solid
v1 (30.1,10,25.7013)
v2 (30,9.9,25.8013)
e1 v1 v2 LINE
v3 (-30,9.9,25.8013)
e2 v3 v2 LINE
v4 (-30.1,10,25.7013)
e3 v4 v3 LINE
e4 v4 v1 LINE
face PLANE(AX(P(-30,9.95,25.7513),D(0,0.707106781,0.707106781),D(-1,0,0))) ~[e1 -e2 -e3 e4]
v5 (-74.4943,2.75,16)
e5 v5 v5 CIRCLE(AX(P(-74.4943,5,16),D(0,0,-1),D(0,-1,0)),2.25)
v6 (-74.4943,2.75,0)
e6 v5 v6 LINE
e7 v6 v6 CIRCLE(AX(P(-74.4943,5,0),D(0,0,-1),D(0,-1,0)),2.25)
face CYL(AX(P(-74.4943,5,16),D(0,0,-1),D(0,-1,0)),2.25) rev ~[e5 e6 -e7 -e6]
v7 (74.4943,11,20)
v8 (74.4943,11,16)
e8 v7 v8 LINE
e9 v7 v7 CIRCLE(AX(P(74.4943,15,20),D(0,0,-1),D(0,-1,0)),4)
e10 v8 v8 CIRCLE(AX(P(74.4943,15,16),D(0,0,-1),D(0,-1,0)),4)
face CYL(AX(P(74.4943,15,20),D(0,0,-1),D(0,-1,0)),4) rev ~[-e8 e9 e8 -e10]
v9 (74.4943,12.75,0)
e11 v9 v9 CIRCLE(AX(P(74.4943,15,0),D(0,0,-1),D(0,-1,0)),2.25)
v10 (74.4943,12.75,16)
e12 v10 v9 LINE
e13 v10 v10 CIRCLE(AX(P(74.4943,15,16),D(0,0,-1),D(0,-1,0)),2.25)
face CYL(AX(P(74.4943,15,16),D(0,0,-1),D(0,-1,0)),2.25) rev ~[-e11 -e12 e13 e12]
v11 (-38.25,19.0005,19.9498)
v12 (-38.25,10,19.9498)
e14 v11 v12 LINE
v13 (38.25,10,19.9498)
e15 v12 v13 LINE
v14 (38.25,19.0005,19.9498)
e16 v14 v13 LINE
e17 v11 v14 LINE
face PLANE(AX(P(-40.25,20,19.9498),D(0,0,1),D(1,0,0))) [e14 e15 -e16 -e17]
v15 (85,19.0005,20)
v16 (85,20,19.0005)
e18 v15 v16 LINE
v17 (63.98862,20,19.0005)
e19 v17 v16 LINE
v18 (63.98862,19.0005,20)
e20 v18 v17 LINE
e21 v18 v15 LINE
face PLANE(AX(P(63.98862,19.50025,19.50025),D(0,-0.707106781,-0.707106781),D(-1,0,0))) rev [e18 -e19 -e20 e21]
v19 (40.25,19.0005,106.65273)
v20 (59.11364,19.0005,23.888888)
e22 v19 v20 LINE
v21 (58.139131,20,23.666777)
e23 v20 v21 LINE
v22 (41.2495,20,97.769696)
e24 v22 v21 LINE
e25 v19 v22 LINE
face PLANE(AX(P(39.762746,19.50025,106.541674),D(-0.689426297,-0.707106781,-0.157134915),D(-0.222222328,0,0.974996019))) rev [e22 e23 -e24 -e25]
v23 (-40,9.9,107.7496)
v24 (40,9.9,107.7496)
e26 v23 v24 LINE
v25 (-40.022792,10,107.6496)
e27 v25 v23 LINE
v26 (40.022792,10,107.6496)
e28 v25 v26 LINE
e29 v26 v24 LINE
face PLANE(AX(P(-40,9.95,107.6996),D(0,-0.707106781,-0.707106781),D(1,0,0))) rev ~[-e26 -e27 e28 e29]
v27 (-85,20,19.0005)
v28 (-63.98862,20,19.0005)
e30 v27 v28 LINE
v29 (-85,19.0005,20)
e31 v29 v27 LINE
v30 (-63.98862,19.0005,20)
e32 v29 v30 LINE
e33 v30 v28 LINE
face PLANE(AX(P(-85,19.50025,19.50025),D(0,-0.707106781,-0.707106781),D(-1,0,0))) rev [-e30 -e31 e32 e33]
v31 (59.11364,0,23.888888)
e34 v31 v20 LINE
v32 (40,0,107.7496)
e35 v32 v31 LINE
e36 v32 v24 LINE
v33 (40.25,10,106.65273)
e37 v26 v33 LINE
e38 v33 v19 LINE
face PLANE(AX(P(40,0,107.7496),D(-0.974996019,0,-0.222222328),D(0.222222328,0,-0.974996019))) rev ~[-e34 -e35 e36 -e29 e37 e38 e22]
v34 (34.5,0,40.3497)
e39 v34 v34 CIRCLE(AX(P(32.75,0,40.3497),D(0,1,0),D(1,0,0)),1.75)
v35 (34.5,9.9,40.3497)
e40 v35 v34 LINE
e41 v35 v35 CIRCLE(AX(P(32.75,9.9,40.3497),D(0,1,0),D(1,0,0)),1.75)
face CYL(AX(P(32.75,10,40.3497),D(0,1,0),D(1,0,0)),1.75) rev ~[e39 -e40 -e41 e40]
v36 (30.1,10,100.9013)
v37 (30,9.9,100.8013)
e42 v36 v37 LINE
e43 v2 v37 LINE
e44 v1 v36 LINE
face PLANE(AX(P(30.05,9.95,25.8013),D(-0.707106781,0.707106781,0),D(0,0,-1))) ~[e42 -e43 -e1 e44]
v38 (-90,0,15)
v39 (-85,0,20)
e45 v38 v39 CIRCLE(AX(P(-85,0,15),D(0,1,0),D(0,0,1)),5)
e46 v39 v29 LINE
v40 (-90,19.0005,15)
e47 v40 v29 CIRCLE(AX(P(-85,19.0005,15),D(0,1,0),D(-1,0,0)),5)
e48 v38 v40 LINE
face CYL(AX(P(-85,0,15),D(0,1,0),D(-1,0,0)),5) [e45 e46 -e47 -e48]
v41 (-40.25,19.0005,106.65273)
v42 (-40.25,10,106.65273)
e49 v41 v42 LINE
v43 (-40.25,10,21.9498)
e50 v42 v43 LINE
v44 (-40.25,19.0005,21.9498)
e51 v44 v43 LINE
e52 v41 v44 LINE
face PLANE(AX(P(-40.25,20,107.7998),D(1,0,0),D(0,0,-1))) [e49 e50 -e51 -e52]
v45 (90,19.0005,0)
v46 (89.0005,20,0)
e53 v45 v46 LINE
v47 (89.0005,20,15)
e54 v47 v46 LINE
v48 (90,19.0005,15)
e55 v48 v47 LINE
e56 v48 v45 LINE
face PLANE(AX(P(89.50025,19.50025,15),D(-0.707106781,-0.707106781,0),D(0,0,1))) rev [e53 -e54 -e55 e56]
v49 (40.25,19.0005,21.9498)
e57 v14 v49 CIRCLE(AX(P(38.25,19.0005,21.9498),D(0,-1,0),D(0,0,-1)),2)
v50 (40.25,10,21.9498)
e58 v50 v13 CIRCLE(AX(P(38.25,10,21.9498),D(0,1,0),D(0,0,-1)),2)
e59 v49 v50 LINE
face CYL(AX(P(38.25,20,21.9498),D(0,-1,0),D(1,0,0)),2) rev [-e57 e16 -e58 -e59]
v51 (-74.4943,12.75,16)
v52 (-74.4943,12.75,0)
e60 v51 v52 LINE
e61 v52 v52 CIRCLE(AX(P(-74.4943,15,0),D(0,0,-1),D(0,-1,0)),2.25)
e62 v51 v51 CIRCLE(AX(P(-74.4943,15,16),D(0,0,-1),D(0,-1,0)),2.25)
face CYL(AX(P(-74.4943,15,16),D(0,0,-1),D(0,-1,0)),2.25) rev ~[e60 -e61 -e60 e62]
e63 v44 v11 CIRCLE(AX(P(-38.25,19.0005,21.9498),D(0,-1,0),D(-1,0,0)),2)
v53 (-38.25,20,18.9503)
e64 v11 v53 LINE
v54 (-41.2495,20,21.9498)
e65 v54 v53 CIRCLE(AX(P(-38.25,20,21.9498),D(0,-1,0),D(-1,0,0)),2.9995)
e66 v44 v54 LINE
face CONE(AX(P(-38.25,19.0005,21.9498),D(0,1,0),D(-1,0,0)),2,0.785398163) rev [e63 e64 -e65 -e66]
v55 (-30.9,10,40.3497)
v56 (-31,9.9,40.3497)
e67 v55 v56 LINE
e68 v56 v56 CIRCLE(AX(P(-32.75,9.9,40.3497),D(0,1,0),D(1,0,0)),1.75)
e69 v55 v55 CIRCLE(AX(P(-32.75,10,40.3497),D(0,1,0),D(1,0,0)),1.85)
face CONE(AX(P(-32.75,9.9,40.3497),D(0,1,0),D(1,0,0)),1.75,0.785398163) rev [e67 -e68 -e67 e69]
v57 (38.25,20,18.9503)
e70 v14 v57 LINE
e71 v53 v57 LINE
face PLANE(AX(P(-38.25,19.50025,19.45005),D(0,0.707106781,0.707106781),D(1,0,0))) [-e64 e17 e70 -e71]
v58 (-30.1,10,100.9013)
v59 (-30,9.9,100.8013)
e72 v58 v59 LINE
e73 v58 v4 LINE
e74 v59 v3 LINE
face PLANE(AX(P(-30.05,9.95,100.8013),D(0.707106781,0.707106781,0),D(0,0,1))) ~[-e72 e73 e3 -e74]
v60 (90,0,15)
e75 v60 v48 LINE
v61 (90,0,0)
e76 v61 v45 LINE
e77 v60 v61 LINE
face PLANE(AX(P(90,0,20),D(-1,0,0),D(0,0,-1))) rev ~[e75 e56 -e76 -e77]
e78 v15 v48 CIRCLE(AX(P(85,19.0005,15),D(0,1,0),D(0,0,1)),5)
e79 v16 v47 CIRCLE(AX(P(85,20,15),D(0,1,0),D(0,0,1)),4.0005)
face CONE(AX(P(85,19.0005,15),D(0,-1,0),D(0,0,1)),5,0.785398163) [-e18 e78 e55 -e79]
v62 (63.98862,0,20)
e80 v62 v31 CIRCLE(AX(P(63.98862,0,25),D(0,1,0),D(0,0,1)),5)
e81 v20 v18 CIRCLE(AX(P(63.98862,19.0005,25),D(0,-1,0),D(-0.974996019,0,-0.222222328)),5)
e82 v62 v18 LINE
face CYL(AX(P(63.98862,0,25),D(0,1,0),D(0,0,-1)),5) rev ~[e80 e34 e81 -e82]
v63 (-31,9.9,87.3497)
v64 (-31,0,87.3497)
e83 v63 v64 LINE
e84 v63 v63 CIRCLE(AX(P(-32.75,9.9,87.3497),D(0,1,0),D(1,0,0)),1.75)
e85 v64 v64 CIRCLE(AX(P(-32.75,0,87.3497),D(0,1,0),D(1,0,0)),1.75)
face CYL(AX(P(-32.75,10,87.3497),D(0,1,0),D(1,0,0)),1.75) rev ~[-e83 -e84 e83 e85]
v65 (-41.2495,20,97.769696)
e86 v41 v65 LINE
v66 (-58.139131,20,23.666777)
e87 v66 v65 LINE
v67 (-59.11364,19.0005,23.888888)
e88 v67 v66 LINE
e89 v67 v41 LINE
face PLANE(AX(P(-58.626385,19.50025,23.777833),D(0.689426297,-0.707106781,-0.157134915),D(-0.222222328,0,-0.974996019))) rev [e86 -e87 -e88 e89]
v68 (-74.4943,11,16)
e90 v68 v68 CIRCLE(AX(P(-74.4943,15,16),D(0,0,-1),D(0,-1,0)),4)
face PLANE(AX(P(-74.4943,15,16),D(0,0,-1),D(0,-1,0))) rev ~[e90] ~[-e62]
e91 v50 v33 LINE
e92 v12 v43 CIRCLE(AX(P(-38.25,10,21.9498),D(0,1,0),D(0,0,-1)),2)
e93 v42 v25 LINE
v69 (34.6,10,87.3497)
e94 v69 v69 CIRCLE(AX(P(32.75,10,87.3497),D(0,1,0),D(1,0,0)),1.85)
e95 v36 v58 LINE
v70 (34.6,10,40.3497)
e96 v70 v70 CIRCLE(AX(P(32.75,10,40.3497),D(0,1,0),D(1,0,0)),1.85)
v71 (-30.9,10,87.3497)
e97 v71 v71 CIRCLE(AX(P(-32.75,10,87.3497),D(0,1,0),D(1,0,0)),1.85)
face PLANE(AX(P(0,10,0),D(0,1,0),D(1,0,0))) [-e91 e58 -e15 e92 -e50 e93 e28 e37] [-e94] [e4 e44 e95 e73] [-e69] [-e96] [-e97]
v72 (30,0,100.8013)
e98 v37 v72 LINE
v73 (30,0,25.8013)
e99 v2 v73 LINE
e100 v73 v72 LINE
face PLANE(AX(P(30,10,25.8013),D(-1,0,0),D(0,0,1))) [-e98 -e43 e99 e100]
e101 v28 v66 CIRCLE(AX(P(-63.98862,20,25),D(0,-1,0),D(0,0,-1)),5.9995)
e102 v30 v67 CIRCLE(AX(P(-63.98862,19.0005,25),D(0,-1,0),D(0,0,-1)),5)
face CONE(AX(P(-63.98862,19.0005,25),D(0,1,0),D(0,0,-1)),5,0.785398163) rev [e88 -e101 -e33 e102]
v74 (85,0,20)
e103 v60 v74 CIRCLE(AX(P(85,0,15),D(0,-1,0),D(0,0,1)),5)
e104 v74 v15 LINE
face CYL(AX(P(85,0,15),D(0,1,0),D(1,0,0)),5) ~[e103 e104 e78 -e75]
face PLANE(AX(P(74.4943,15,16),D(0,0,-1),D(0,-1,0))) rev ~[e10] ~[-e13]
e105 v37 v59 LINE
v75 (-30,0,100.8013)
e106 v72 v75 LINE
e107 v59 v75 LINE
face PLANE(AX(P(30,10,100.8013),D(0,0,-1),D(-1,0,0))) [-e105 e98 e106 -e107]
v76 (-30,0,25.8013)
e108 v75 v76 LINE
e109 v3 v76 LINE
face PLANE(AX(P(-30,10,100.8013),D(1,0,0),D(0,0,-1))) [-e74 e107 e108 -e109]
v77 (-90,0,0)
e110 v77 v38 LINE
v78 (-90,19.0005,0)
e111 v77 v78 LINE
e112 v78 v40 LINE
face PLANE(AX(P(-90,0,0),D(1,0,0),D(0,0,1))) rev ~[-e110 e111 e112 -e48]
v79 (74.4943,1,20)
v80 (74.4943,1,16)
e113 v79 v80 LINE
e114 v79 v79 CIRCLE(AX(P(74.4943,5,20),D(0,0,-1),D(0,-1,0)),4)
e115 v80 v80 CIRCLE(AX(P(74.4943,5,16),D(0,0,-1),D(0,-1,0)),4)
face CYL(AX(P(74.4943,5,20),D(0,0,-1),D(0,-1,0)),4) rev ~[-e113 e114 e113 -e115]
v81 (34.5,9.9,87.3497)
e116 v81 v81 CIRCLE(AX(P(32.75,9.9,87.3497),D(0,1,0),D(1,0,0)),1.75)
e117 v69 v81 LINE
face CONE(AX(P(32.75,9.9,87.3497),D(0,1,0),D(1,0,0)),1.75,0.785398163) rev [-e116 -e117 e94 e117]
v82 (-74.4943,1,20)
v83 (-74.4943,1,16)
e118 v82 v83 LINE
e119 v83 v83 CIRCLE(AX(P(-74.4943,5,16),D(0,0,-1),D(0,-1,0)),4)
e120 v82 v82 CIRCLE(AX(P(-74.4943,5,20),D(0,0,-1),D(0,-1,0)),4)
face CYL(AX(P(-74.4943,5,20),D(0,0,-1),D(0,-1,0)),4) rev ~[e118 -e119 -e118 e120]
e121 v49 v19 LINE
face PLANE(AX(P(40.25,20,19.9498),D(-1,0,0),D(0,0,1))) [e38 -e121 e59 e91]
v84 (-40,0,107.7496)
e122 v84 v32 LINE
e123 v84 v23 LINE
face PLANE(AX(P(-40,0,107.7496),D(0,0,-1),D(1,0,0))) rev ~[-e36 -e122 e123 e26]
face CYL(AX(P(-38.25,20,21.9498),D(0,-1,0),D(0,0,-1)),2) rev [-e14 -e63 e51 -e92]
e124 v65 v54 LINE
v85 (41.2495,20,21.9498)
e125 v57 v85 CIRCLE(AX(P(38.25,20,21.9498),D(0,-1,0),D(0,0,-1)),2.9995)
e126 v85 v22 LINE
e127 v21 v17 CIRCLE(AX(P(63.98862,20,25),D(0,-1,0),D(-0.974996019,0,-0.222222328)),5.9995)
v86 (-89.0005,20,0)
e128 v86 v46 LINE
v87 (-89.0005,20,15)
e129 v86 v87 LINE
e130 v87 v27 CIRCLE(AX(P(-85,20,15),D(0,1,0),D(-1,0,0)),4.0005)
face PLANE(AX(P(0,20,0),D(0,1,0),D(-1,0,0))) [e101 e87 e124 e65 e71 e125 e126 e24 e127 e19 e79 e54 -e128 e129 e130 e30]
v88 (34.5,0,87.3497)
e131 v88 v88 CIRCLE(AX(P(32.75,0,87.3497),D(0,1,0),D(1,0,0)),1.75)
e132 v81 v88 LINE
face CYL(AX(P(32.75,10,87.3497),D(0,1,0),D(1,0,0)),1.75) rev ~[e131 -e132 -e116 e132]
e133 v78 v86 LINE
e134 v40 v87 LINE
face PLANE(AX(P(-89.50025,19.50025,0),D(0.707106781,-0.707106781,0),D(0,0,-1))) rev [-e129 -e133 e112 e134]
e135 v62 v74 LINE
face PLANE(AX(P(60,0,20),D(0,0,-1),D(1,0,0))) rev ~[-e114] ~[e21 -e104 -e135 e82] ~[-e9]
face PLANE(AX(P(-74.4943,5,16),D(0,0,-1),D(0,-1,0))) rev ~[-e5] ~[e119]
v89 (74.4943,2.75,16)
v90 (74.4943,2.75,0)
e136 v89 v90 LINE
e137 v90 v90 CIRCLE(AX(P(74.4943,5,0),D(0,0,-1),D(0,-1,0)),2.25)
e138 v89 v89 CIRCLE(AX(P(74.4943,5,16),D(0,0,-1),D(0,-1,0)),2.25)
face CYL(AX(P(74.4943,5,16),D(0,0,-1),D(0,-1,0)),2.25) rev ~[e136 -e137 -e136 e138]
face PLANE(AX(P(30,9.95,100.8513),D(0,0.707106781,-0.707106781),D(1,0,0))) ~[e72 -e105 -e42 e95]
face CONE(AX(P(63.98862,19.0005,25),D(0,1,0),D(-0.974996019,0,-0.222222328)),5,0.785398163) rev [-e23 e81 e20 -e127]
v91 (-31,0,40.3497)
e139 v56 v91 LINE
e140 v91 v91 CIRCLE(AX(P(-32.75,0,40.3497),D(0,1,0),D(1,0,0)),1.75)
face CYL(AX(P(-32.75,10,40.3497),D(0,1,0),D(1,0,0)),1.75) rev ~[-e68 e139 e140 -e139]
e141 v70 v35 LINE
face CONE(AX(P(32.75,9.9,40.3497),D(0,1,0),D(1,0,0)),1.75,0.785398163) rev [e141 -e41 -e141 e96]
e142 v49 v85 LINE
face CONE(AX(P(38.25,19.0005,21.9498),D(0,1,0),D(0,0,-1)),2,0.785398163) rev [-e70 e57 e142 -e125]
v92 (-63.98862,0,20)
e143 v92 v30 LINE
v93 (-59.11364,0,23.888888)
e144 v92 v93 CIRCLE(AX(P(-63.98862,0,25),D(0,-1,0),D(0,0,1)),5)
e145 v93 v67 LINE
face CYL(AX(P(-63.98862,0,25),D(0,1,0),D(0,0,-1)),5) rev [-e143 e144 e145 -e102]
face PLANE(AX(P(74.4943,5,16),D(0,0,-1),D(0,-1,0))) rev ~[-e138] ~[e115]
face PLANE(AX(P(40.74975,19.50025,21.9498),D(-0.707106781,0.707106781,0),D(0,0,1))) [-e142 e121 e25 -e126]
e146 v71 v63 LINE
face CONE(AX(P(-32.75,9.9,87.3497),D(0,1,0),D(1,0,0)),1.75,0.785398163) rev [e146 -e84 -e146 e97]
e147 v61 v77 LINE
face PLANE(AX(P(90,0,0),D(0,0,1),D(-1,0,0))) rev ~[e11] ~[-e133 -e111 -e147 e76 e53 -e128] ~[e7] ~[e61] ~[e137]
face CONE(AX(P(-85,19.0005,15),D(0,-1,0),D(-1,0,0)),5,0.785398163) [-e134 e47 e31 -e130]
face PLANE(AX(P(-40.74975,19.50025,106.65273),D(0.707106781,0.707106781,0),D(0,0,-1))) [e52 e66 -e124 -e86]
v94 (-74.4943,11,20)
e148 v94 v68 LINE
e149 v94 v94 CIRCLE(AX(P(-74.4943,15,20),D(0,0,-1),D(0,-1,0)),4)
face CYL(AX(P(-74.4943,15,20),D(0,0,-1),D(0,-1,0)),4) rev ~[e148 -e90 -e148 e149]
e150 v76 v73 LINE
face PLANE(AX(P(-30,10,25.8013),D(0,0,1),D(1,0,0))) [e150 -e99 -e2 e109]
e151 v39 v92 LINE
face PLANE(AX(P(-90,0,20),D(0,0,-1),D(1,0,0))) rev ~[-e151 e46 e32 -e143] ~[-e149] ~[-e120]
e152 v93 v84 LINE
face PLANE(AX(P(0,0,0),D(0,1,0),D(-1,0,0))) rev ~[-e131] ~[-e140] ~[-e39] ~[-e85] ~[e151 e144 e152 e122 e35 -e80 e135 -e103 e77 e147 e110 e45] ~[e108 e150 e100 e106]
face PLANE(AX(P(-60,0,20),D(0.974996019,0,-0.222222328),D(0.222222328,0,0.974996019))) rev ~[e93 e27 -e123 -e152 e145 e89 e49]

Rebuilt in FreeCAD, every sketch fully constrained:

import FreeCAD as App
import Part
import Sketcher

V = App.Vector
Q = App.Units.Quantity


def edges_at(feature, points):
    """Names of the edges that pass closest to the given points."""
    edges = feature.Shape.Edges
    near = lambda p: min(range(len(edges)), key=lambda i: edges[i].distToShape(Part.Vertex(*p))[0])
    return sorted({f"Edge{near(p) + 1}" for p in points})


def add_polygon(sketch, points):
    """Adds a closed chain of lines whose ends are joined by coincident constraints."""
    first, n = sketch.GeometryCount, len(points)
    for a, b in zip(points, points[1:] + points[:1]):
        sketch.addGeometry(Part.LineSegment(App.Vector(*a, 0), App.Vector(*b, 0)), False)
    for i in range(n):
        sketch.addConstraint(Sketcher.Constraint("Coincident", first + i, 2, first + (i + 1) % n, 1))

doc = App.newDocument("Part")
body = doc.addObject("PartDesign::Body", "Body")

sketch1 = body.newObject("Sketcher::SketchObject", "Sketch")
sketch1.AttachmentSupport = (doc.getObject("XZ_Plane"), [""])
sketch1.MapMode = "FlatFace"
add_polygon(sketch1, [(90, 0), (-90, 0), (-90, 20), (-60, 20), (-40, 107.7496), (40, 107.7496), (60, 20), (90, 20)])
sketch1.addConstraint([
    Sketcher.Constraint("Horizontal", 0),
    Sketcher.Constraint("Vertical", 1),
    Sketcher.Constraint("Horizontal", 2),
    Sketcher.Constraint("Horizontal", 4),
    Sketcher.Constraint("Horizontal", 6),
    Sketcher.Constraint("Vertical", 7),
    Sketcher.Constraint("Symmetric", 0, 2, 7, 2, -1, 1),
    Sketcher.Constraint("Symmetric", 2, 2, 5, 2, -2),
    Sketcher.Constraint("Equal", 3, 5),
    Sketcher.Constraint("DistanceX", 2, 1, 2, 2, Q("30 mm")),
    Sketcher.Constraint("DistanceX", 4, 1, 4, 2, Q("80 mm")),
    Sketcher.Constraint("DistanceY", 1, 1, 1, 2, Q("20 mm")),
    Sketcher.Constraint("Distance", 3, Q("90 mm")),
    Sketcher.Constraint("DistanceX", 0, 2, -1, 1, Q("90 mm")),
])
pad1 = body.newObject("PartDesign::Pad", "Pad")
pad1.Profile = sketch1
pad1.Length = 20
pad1.Reversed = True

sketch2 = body.newObject("Sketcher::SketchObject", "Sketch001")
sketch2.AttachmentSupport = (doc.getObject("XZ_Plane"), [""])
sketch2.MapMode = "FlatFace"
sketch2.AttachmentOffset = App.Placement(V(0, 0, -20), App.Rotation())
add_polygon(sketch2, [(-40.25, 107.7998), (40.25, 107.7998), (40.25, 19.9498), (-40.25, 19.9498)])
sketch2.addConstraint([
    Sketcher.Constraint("Horizontal", 0),
    Sketcher.Constraint("Vertical", 1),
    Sketcher.Constraint("Horizontal", 2),
    Sketcher.Constraint("Vertical", 3),
    Sketcher.Constraint("DistanceX", 0, 1, 0, 2, Q("80.5 mm")),
    Sketcher.Constraint("DistanceY", 1, 2, 1, 1, Q("87.85 mm")),
    Sketcher.Constraint("DistanceX", -1, 1, 0, 2, Q("40.25 mm")),
    Sketcher.Constraint("DistanceY", -1, 1, 0, 2, Q("107.7998 mm")),
])
pocket1 = body.newObject("PartDesign::Pocket", "Pocket")
pocket1.Profile = sketch2
pocket1.Length = 10
pocket1.Reversed = True

sketch3 = body.newObject("Sketcher::SketchObject", "Sketch002")
sketch3.AttachmentSupport = (doc.getObject("XZ_Plane"), [""])
sketch3.MapMode = "FlatFace"
sketch3.AttachmentOffset = App.Placement(V(0, 0, -10), App.Rotation())
add_polygon(sketch3, [(30, 100.8013), (30, 25.8013), (-30, 25.8013), (-30, 100.8013)])
sketch3.addGeometry(Part.Circle(V(-32.75, 87.3497, 0), V(0, 0, 1), 1.75), False)
sketch3.addGeometry(Part.Circle(V(-32.75, 40.3497, 0), V(0, 0, 1), 1.75), False)
sketch3.addGeometry(Part.Circle(V(32.75, 40.3497, 0), V(0, 0, 1), 1.75), False)
sketch3.addGeometry(Part.Circle(V(32.75, 87.3497, 0), V(0, 0, 1), 1.75), False)
sketch3.addConstraint([
    Sketcher.Constraint("Vertical", 0),
    Sketcher.Constraint("Horizontal", 1),
    Sketcher.Constraint("Vertical", 2),
    Sketcher.Constraint("Horizontal", 3),
    Sketcher.Constraint("Equal", 4, 5),
    Sketcher.Constraint("Equal", 5, 6),
    Sketcher.Constraint("Equal", 6, 7),
    Sketcher.Constraint("Symmetric", 5, 3, 6, 3, -2),
    Sketcher.Constraint("Symmetric", 4, 3, 7, 3, -2),
    Sketcher.Constraint("Vertical", 4, 3, 5, 3),
    Sketcher.Constraint("Diameter", 4, Q("3.5 mm")),
    Sketcher.Constraint("DistanceX", 1, 2, 1, 1, Q("60 mm")),
    Sketcher.Constraint("DistanceY", 0, 2, 0, 1, Q("75 mm")),
    Sketcher.Constraint("DistanceX", -1, 1, 0, 2, Q("30 mm")),
    Sketcher.Constraint("DistanceY", 5, 3, 4, 3, Q("47 mm")),
    Sketcher.Constraint("DistanceX", 5, 3, 6, 3, Q("65.5 mm")),
    Sketcher.Constraint("DistanceY", -1, 1, 4, 3, Q("87.3497 mm")),
    Sketcher.Constraint("DistanceY", -1, 1, 0, 2, Q("25.8013 mm")),
])
pocket2 = body.newObject("PartDesign::Pocket", "Pocket001")
pocket2.Profile = sketch3
pocket2.Length = 10
pocket2.Reversed = True
doc.recompute()

fillet = body.newObject("PartDesign::Fillet", "Fillet")
fillet.Base = (pocket2, edges_at(pocket2, [
    (-90, 10, 20),
    (90, 10, 20),
    (60, 10, 20),
    (-60, 10, 20),
]))
fillet.Radius = 5
doc.recompute()

fillet2 = body.newObject("PartDesign::Fillet", "Fillet001")
fillet2.Base = (fillet, edges_at(fillet, [(-40.25, 15, 19.95), (40.25, 15, 19.95)]))
fillet2.Radius = 2

sketch4 = body.newObject("Sketcher::SketchObject", "Sketch003")
sketch4.AttachmentSupport = (doc.getObject("XY_Plane"), [""])
sketch4.MapMode = "FlatFace"
sketch4.AttachmentOffset = App.Placement(V(0, 0, 20), App.Rotation())
sketch4.addGeometry([
    Part.Circle(V(74.4943, 15, 0), V(0, 0, 1), 2.25),
    Part.Circle(V(74.4943, 5, 0), V(0, 0, 1), 2.25),
    Part.Circle(V(-74.4943, 15, 0), V(0, 0, 1), 2.25),
    Part.Circle(V(-74.4943, 5, 0), V(0, 0, 1), 2.25),
], False)
sketch4.addConstraint([
    Sketcher.Constraint("Equal", 0, 1),
    Sketcher.Constraint("Equal", 1, 2),
    Sketcher.Constraint("Equal", 2, 3),
    Sketcher.Constraint("Symmetric", 0, 3, 2, 3, -2),
    Sketcher.Constraint("Symmetric", 1, 3, 3, 3, -2),
    Sketcher.Constraint("Vertical", 0, 3, 1, 3),
    Sketcher.Constraint("Diameter", 0, Q("4.5 mm")),
    Sketcher.Constraint("DistanceY", -1, 1, 0, 3, Q("15 mm")),
    Sketcher.Constraint("DistanceY", -1, 1, 1, 3, Q("5 mm")),
    Sketcher.Constraint("DistanceX", -1, 1, 0, 3, Q("74.4943 mm")),
])
doc.recompute()
hole = body.newObject("PartDesign::Hole", "Hole")
hole.Profile = sketch4
hole.ThreadType = "None"
hole.Diameter = 4.5
hole.DepthType = "ThroughAll"
hole.HoleCutType = "Counterbore"
hole.HoleCutDiameter = 8
hole.HoleCutDepth = 4
doc.recompute()

chamfer = body.newObject("PartDesign::Chamfer", "Chamfer")
chamfer.Base = (hole, edges_at(hole, [
    (-30, 10, 63.301),
    (0, 10, 25.801),
    (0, 10, 100.801),
    (30, 10, 63.301),
    (31, 10, 40.35),
    (31, 10, 87.35),
    (-34.5, 10, 40.35),
    (-34.5, 10, 87.35),
]))
chamfer.Size = 0.1
doc.recompute()

chamfer2 = body.newObject("PartDesign::Chamfer", "Chamfer001")
chamfer2.Base = (chamfer, edges_at(chamfer, [
    (-40.25, 20, 64.301),
    (-39.664, 20, 20.536),
    (0, 20, 19.95),
    (39.664, 20, 20.536),
    (40.25, 20, 64.301),
    (-49.682, 20, 65.271),
    (-74.494, 20, 20),
    (-88.535, 20, 18.535),
    (-90, 20, 7.5),
    (49.682, 20, 65.271),
    (74.494, 20, 20),
    (88.535, 20, 18.535),
    (90, 20, 7.5),
]))
chamfer2.Size = 1
doc.recompute()

chamfer3 = body.newObject("PartDesign::Chamfer", "Chamfer002")
chamfer3.Base = (chamfer2, edges_at(chamfer2, [(0, 10, 107.75)]))
chamfer3.Size = 0.1

doc.recompute()
